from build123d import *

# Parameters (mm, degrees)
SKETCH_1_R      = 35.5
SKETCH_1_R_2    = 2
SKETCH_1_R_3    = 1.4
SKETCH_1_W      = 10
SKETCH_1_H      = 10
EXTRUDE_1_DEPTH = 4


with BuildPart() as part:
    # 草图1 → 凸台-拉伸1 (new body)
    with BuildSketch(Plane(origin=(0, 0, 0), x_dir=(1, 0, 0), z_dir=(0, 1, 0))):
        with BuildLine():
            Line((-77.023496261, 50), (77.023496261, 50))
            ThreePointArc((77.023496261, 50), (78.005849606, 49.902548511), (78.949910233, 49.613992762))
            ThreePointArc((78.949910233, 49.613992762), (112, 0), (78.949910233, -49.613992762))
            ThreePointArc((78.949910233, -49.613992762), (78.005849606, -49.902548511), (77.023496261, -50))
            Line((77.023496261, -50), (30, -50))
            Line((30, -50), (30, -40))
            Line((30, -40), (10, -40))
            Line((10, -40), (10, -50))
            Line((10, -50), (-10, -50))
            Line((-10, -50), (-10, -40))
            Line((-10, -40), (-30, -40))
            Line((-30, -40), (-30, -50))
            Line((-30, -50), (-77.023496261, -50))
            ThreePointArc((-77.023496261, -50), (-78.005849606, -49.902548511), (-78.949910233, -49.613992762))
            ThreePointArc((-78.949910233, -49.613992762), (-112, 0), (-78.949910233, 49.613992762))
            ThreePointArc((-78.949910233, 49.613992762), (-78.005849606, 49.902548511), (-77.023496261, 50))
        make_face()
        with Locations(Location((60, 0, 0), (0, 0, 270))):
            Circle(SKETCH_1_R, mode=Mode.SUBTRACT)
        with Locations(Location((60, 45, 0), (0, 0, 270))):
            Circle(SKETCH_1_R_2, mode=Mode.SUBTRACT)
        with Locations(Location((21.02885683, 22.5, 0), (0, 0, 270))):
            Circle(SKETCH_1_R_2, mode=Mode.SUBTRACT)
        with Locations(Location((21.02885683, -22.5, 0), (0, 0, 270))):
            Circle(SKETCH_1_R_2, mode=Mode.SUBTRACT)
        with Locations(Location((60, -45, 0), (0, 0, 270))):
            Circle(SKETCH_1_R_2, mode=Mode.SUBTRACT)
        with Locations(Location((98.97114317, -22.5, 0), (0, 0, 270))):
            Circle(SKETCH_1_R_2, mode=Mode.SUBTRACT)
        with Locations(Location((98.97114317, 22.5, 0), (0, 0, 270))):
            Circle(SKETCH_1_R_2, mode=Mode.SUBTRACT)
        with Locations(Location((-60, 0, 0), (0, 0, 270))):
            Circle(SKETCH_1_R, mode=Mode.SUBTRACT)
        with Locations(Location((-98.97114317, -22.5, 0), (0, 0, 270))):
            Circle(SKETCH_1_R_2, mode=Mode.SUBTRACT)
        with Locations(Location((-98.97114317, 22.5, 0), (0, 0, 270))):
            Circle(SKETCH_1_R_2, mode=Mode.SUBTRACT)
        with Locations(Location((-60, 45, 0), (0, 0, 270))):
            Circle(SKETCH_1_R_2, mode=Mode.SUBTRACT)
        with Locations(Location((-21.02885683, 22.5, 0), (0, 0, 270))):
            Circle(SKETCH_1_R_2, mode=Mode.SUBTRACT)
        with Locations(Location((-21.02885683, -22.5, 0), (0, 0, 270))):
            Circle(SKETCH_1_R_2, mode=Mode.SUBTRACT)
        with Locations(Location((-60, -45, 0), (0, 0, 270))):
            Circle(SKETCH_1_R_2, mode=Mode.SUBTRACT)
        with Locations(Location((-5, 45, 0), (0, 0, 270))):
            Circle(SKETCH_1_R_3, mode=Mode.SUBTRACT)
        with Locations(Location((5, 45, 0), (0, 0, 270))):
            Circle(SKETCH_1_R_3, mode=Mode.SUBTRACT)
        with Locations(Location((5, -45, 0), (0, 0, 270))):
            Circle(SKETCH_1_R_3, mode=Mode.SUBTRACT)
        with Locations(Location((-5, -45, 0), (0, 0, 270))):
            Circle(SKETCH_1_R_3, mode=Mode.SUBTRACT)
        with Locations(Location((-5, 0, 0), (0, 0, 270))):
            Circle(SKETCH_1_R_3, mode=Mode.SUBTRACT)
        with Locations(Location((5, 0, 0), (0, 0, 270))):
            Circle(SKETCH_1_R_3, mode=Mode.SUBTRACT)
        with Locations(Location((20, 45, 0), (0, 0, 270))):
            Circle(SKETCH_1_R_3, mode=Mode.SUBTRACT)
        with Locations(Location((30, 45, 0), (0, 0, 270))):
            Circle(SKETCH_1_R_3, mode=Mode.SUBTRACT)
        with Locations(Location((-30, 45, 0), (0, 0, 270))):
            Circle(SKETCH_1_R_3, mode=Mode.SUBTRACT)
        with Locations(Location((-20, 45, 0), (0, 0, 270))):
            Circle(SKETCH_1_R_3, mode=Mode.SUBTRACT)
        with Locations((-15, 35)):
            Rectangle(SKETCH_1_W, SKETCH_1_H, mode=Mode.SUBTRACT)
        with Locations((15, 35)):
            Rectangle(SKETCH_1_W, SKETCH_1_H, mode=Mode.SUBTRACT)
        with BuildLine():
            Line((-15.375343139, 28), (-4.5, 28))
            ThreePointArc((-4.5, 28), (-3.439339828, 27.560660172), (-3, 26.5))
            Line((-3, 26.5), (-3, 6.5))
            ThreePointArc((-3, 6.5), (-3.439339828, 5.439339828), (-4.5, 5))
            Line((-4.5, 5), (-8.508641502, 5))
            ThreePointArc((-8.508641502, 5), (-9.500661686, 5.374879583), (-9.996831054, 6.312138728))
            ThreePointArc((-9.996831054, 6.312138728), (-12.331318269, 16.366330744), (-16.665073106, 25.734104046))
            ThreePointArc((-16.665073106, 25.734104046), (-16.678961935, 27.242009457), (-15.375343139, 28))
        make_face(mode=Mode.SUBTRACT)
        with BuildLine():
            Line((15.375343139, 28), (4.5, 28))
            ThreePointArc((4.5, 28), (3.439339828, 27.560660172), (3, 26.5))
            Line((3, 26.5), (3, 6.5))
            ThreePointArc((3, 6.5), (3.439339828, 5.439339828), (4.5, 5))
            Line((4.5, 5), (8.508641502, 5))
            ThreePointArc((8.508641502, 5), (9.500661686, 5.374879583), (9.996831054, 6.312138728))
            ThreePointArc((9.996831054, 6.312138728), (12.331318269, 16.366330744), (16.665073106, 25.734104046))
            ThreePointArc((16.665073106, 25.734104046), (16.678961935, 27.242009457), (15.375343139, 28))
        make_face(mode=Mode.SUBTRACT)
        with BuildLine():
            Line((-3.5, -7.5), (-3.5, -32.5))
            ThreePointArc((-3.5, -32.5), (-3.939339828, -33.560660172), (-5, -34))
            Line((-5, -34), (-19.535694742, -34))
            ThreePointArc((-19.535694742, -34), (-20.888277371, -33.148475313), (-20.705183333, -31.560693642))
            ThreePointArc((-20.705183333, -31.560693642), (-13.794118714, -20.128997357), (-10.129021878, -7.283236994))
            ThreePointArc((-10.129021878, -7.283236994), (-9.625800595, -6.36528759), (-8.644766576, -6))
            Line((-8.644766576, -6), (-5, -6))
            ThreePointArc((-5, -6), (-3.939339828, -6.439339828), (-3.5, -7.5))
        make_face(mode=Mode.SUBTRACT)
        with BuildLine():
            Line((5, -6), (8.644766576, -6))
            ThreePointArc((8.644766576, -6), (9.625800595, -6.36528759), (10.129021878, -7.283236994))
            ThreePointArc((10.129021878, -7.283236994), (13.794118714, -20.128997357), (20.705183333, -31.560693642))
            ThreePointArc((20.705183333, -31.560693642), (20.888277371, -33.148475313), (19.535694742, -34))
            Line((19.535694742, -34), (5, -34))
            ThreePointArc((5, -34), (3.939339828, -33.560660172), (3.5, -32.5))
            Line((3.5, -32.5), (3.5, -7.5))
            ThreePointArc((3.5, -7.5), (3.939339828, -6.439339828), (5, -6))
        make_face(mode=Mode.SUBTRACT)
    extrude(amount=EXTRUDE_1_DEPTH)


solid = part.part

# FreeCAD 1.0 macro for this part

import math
import FreeCAD as App
import Part
import Sketcher
from FreeCAD import Vector


def add_polygon(sketch, points):
    """Adds a closed chain of lines whose ends are joined by coincident constraints."""
    first, n = sketch.GeometryCount, len(points)
    for a, b in zip(points, points[1:] + points[:1]):
        sketch.addGeometry(Part.LineSegment(App.Vector(*a, 0), App.Vector(*b, 0)), False)
    for i in range(n):
        sketch.addConstraint(Sketcher.Constraint("Coincident", first + i, 2, first + (i + 1) % n, 1))

doc = App.newDocument("Part")
body = doc.addObject("PartDesign::Body", "Body")

sketch1 = body.newObject("Sketcher::SketchObject", "Sketch")
sketch1.AttachmentSupport = (doc.getObject("XZ_Plane"), [""])
sketch1.MapMode = "FlatFace"
sketch1.addGeometry(Part.LineSegment(Vector(77, -50, 0), Vector(-77, -50, 0)), False)
sketch1.addGeometry(Part.ArcOfCircle(Part.Circle(Vector(-77, -45, 0), Vector(0, 0, 1), 5), math.radians(-113), math.radians(-90)), False)
sketch1.addGeometry(Part.ArcOfCircle(Part.Circle(Vector(-58.2, 0, 0), Vector(0, 0, 1), 53.8), math.radians(113), math.radians(247)), False)
sketch1.addGeometry(Part.ArcOfCircle(Part.Circle(Vector(-77, 45, 0), Vector(0, 0, 1), 5), math.radians(90), math.radians(113)), False)
sketch1.addGeometry(Part.LineSegment(Vector(-77, 50, 0), Vector(-30, 50, 0)), False)
sketch1.addGeometry(Part.LineSegment(Vector(-30, 50, 0), Vector(-30, 40, 0)), False)
sketch1.addGeometry(Part.LineSegment(Vector(-30, 40, 0), Vector(-10, 40, 0)), False)
sketch1.addGeometry(Part.LineSegment(Vector(-10, 40, 0), Vector(-10, 50, 0)), False)
sketch1.addGeometry(Part.LineSegment(Vector(-10, 50, 0), Vector(10, 50, 0)), False)
sketch1.addGeometry(Part.LineSegment(Vector(10, 50, 0), Vector(10, 40, 0)), False)
sketch1.addGeometry(Part.LineSegment(Vector(10, 40, 0), Vector(30, 40, 0)), False)
sketch1.addGeometry(Part.LineSegment(Vector(30, 40, 0), Vector(30, 50, 0)), False)
sketch1.addGeometry(Part.LineSegment(Vector(30, 50, 0), Vector(77, 50, 0)), False)
sketch1.addGeometry(Part.ArcOfCircle(Part.Circle(Vector(77, 45, 0), Vector(0, 0, 1), 5), math.radians(67), math.radians(90)), False)
sketch1.addGeometry(Part.ArcOfCircle(Part.Circle(Vector(58.2, 0, 0), Vector(0, 0, 1), 53.8), math.radians(-67), math.radians(67)), False)
sketch1.addGeometry(Part.ArcOfCircle(Part.Circle(Vector(77, -45, 0), Vector(0, 0, 1), 5), math.radians(-90), math.radians(-67)), False)
sketch1.addGeometry(Part.Circle(Vector(60, 45, 0), Vector(0, 0, 1), 2), False)
sketch1.addGeometry(Part.Circle(Vector(5, 45, 0), Vector(0, 0, 1), 1.4), False)
sketch1.addGeometry(Part.Circle(Vector(99, 22.5, 0), Vector(0, 0, 1), 2), False)
sketch1.addGeometry(Part.Circle(Vector(21, 22.5, 0), Vector(0, 0, 1), 2), False)
sketch1.addGeometry(Part.LineSegment(Vector(5, 6, 0), Vector(8.6, 6, 0)), False)
sketch1.addGeometry(Part.ArcOfCircle(Part.Circle(Vector(8.6, 7.5, 0), Vector(0, 0, 1), 1.5), math.radians(-90), math.radians(-8)), False)
sketch1.addGeometry(Part.ArcOfCircle(Part.Circle(Vector(60, 0, 0), Vector(0, 0, 1), 50.4), math.radians(141), math.radians(172)), False)
sketch1.addGeometry(Part.ArcOfCircle(Part.Circle(Vector(19.5, 32.5, 0), Vector(0, 0, 1), 1.5), math.radians(-39), math.radians(90)), False)
sketch1.addGeometry(Part.LineSegment(Vector(19.5, 34, 0), Vector(5, 34, 0)), False)
sketch1.addGeometry(Part.ArcOfCircle(Part.Circle(Vector(5, 32.5, 0), Vector(0, 0, 1), 1.5), math.radians(90), math.radians(180)), False)
sketch1.addGeometry(Part.LineSegment(Vector(3.5, 32.5, 0), Vector(3.5, 7.5, 0)), False)
sketch1.addGeometry(Part.ArcOfCircle(Part.Circle(Vector(5, 7.5, 0), Vector(0, 0, 1), 1.5), math.radians(180), math.radians(270)), False)
sketch1.addGeometry(Part.Circle(Vector(-5, 45, 0), Vector(0, 0, 1), 1.4), False)
sketch1.addGeometry(Part.Circle(Vector(-60, 45, 0), Vector(0, 0, 1), 2), False)
sketch1.addGeometry(Part.LineSegment(Vector(-3.5, 7.5, 0), Vector(-3.5, 32.5, 0)), False)
sketch1.addGeometry(Part.ArcOfCircle(Part.Circle(Vector(-5, 32.5, 0), Vector(0, 0, 1), 1.5), math.radians(0), math.radians(90)), False)
sketch1.addGeometry(Part.LineSegment(Vector(-5, 34, 0), Vector(-19.5, 34, 0)), False)
sketch1.addGeometry(Part.ArcOfCircle(Part.Circle(Vector(-19.5, 32.5, 0), Vector(0, 0, 1), 1.5), math.radians(90), math.radians(219)), False)
sketch1.addGeometry(Part.ArcOfCircle(Part.Circle(Vector(-60, 0, 0), Vector(0, 0, 1), 50.4), math.radians(8), math.radians(39)), False)
sketch1.addGeometry(Part.ArcOfCircle(Part.Circle(Vector(-8.6, 7.5, 0), Vector(0, 0, 1), 1.5), math.radians(-172), math.radians(-90)), False)
sketch1.addGeometry(Part.LineSegment(Vector(-8.6, 6, 0), Vector(-5, 6, 0)), False)
sketch1.addGeometry(Part.ArcOfCircle(Part.Circle(Vector(-5, 7.5, 0), Vector(0, 0, 1), 1.5), math.radians(-90), math.radians(0)), False)
sketch1.addGeometry(Part.Circle(Vector(-21, 22.5, 0), Vector(0, 0, 1), 2), False)
sketch1.addGeometry(Part.Circle(Vector(-99, 22.5, 0), Vector(0, 0, 1), 2), False)
sketch1.addGeometry(Part.Circle(Vector(60, 0, 0), Vector(0, 0, 1), 35.5), False)
sketch1.addGeometry(Part.Circle(Vector(99, -22.5, 0), Vector(0, 0, 1), 2), False)
sketch1.addGeometry(Part.Circle(Vector(5, 0, 0), Vector(0, 0, 1), 1.4), False)
sketch1.addGeometry(Part.ArcOfCircle(Part.Circle(Vector(15.4, -26.5, 0), Vector(0, 0, 1), 1.5), math.radians(-90), math.radians(31)), False)
sketch1.addGeometry(Part.ArcOfCircle(Part.Circle(Vector(60, 0, 0), Vector(0, 0, 1), 50.4), math.radians(-173), math.radians(-149)), False)
sketch1.addGeometry(Part.ArcOfCircle(Part.Circle(Vector(8.5, -6.5, 0), Vector(0, 0, 1), 1.5), math.radians(7), math.radians(90)), False)
sketch1.addGeometry(Part.LineSegment(Vector(8.5, -5, 0), Vector(4.5, -5, 0)), False)
sketch1.addGeometry(Part.ArcOfCircle(Part.Circle(Vector(4.5, -6.5, 0), Vector(0, 0, 1), 1.5), math.radians(90), math.radians(180)), False)
sketch1.addGeometry(Part.LineSegment(Vector(3, -6.5, 0), Vector(3, -26.5, 0)), False)
sketch1.addGeometry(Part.ArcOfCircle(Part.Circle(Vector(4.5, -26.5, 0), Vector(0, 0, 1), 1.5), math.radians(180), math.radians(270)), False)
sketch1.addGeometry(Part.LineSegment(Vector(4.5, -28, 0), Vector(15.4, -28, 0)), False)
sketch1.addGeometry(Part.Circle(Vector(21, -22.5, 0), Vector(0, 0, 1), 2), False)
sketch1.addGeometry(Part.Circle(Vector(60, -45, 0), Vector(0, 0, 1), 2), False)
add_polygon(sketch1, [(10, -30), (10, -40), (20, -40), (20, -30)])
sketch1.addGeometry(Part.Circle(Vector(30, -45, 0), Vector(0, 0, 1), 1.4), False)
sketch1.addGeometry(Part.Circle(Vector(20, -45, 0), Vector(0, 0, 1), 1.4), False)
sketch1.addGeometry(Part.Circle(Vector(5, -45, 0), Vector(0, 0, 1), 1.4), False)
sketch1.addGeometry(Part.Circle(Vector(-5, 0, 0), Vector(0, 0, 1), 1.4), False)
sketch1.addGeometry(Part.LineSegment(Vector(-15.4, -28, 0), Vector(-4.5, -28, 0)), False)
sketch1.addGeometry(Part.ArcOfCircle(Part.Circle(Vector(-4.5, -26.5, 0), Vector(0, 0, 1), 1.5), math.radians(-90), math.radians(0)), False)
sketch1.addGeometry(Part.LineSegment(Vector(-3, -26.5, 0), Vector(-3, -6.5, 0)), False)
sketch1.addGeometry(Part.ArcOfCircle(Part.Circle(Vector(-4.5, -6.5, 0), Vector(0, 0, 1), 1.5), math.radians(0), math.radians(90)), False)
sketch1.addGeometry(Part.LineSegment(Vector(-4.5, -5, 0), Vector(-8.5, -5, 0)), False)
sketch1.addGeometry(Part.ArcOfCircle(Part.Circle(Vector(-8.5, -6.5, 0), Vector(0, 0, 1), 1.5), math.radians(90), math.radians(173)), False)
sketch1.addGeometry(Part.ArcOfCircle(Part.Circle(Vector(-60, 0, 0), Vector(0, 0, 1), 50.4), math.radians(-31), math.radians(-7)), False)
sketch1.addGeometry(Part.ArcOfCircle(Part.Circle(Vector(-15.4, -26.5, 0), Vector(0, 0, 1), 1.5), math.radians(149), math.radians(270)), False)
sketch1.addGeometry(Part.Circle(Vector(-21, -22.5, 0), Vector(0, 0, 1), 2), False)
sketch1.addGeometry(Part.Circle(Vector(-60, 0, 0), Vector(0, 0, 1), 35.5), False)
sketch1.addGeometry(Part.Circle(Vector(-99, -22.5, 0), Vector(0, 0, 1), 2), False)
add_polygon(sketch1, [(-20, -30), (-20, -40), (-10, -40), (-10, -30)])
sketch1.addGeometry(Part.Circle(Vector(-5, -45, 0), Vector(0, 0, 1), 1.4), False)
sketch1.addGeometry(Part.Circle(Vector(-20, -45, 0), Vector(0, 0, 1), 1.4), False)
sketch1.addGeometry(Part.Circle(Vector(-30, -45, 0), Vector(0, 0, 1), 1.4), False)
sketch1.addGeometry(Part.Circle(Vector(-60, -45, 0), Vector(0, 0, 1), 2), False)
sketch1.addConstraint([
    Sketcher.Constraint("Tangent", 0, 2, 1, 2),
    Sketcher.Constraint("Tangent", 1, 1, 2, 2),
    Sketcher.Constraint("Tangent", 2, 1, 3, 2),
    Sketcher.Constraint("Tangent", 3, 1, 4, 1),
    Sketcher.Constraint("Coincident", 4, 2, 5, 1),
    Sketcher.Constraint("Coincident", 5, 2, 6, 1),
    Sketcher.Constraint("Coincident", 6, 2, 7, 1),
    Sketcher.Constraint("Coincident", 7, 2, 8, 1),
    Sketcher.Constraint("Coincident", 8, 2, 9, 1),
    Sketcher.Constraint("Coincident", 9, 2, 10, 1),
    Sketcher.Constraint("Coincident", 10, 2, 11, 1),
    Sketcher.Constraint("Coincident", 11, 2, 12, 1),
    Sketcher.Constraint("Tangent", 12, 2, 13, 2),
    Sketcher.Constraint("Tangent", 13, 1, 14, 2),
    Sketcher.Constraint("Tangent", 14, 1, 15, 2),
    Sketcher.Constraint("Tangent", 15, 1, 0, 1),
    Sketcher.Constraint("Tangent", 20, 2, 21, 1),
    Sketcher.Constraint("Tangent", 21, 2, 22, 2),
    Sketcher.Constraint("Tangent", 22, 1, 23, 1),
    Sketcher.Constraint("Tangent", 23, 2, 24, 1),
    Sketcher.Constraint("Tangent", 24, 2, 25, 1),
    Sketcher.Constraint("Tangent", 25, 2, 26, 1),
    Sketcher.Constraint("Tangent", 26, 2, 27, 1),
    Sketcher.Constraint("Tangent", 27, 2, 20, 1),
    Sketcher.Constraint("Tangent", 30, 2, 31, 1),
    Sketcher.Constraint("Tangent", 31, 2, 32, 1),
    Sketcher.Constraint("Tangent", 32, 2, 33, 1),
    Sketcher.Constraint("Tangent", 33, 2, 34, 2),
    Sketcher.Constraint("Tangent", 34, 1, 35, 1),
    Sketcher.Constraint("Tangent", 35, 2, 36, 1),
    Sketcher.Constraint("Tangent", 36, 2, 37, 1),
    Sketcher.Constraint("Tangent", 37, 2, 30, 1),
    Sketcher.Constraint("Tangent", 43, 2, 44, 2),
    Sketcher.Constraint("Tangent", 44, 1, 45, 1),
    Sketcher.Constraint("Tangent", 45, 2, 46, 1),
    Sketcher.Constraint("Tangent", 46, 2, 47, 1),
    Sketcher.Constraint("Tangent", 47, 2, 48, 1),
    Sketcher.Constraint("Tangent", 48, 2, 49, 1),
    Sketcher.Constraint("Tangent", 49, 2, 50, 1),
    Sketcher.Constraint("Tangent", 50, 2, 43, 1),
    Sketcher.Constraint("Tangent", 61, 2, 62, 1),
    Sketcher.Constraint("Tangent", 62, 2, 63, 1),
    Sketcher.Constraint("Tangent", 63, 2, 64, 1),
    Sketcher.Constraint("Tangent", 64, 2, 65, 1),
    Sketcher.Constraint("Tangent", 65, 2, 66, 1),
    Sketcher.Constraint("Tangent", 66, 2, 67, 2),
    Sketcher.Constraint("Tangent", 67, 1, 68, 1),
    Sketcher.Constraint("Tangent", 68, 2, 61, 1),
    Sketcher.Constraint("Horizontal", 0),
    Sketcher.Constraint("Horizontal", 4),
    Sketcher.Constraint("Vertical", 5),
    Sketcher.Constraint("Horizontal", 6),
    Sketcher.Constraint("Vertical", 7),
    Sketcher.Constraint("Horizontal", 8),
    Sketcher.Constraint("Vertical", 9),
    Sketcher.Constraint("Horizontal", 10),
    Sketcher.Constraint("Vertical", 11),
    Sketcher.Constraint("Horizontal", 12),
    Sketcher.Constraint("Horizontal", 20),
    Sketcher.Constraint("Horizontal", 24),
    Sketcher.Constraint("Vertical", 26),
    Sketcher.Constraint("Vertical", 30),
    Sketcher.Constraint("Horizontal", 32),
    Sketcher.Constraint("Horizontal", 36),
    Sketcher.Constraint("Horizontal", 46),
    Sketcher.Constraint("Vertical", 48),
    Sketcher.Constraint("Horizontal", 50),
    Sketcher.Constraint("Vertical", 53),
    Sketcher.Constraint("Horizontal", 54),
    Sketcher.Constraint("Vertical", 55),
    Sketcher.Constraint("Horizontal", 56),
    Sketcher.Constraint("Horizontal", 61),
    Sketcher.Constraint("Vertical", 63),
    Sketcher.Constraint("Horizontal", 65),
    Sketcher.Constraint("Vertical", 72),
    Sketcher.Constraint("Horizontal", 73),
    Sketcher.Constraint("Vertical", 74),
    Sketcher.Constraint("Horizontal", 75),
    Sketcher.Constraint("Coincident", 40, 3, 22, 3),
    Sketcher.Constraint("Coincident", 44, 3, 22, 3),
    Sketcher.Constraint("Coincident", 67, 3, 34, 3),
    Sketcher.Constraint("Coincident", 70, 3, 34, 3),
    Sketcher.Constraint("Equal", 1, 3),
    Sketcher.Constraint("Equal", 3, 13),
    Sketcher.Constraint("Equal", 2, 14),
    Sketcher.Constraint("Equal", 13, 15),
    Sketcher.Constraint("Equal", 16, 18),
    Sketcher.Constraint("Equal", 18, 19),
    Sketcher.Constraint("Equal", 21, 23),
    Sketcher.Constraint("Equal", 23, 25),
    Sketcher.Constraint("Equal", 25, 27),
    Sketcher.Constraint("Equal", 17, 28),
    Sketcher.Constraint("Equal", 19, 29),
    Sketcher.Constraint("Equal", 27, 31),
    Sketcher.Constraint("Equal", 31, 33),
    Sketcher.Constraint("Equal", 22, 34),
    Sketcher.Constraint("Equal", 33, 35),
    Sketcher.Constraint("Equal", 35, 37),
    Sketcher.Constraint("Equal", 29, 38),
    Sketcher.Constraint("Equal", 38, 39),
    Sketcher.Constraint("Equal", 39, 41),
    Sketcher.Constraint("Equal", 28, 42),
    Sketcher.Constraint("Equal", 37, 43),
    Sketcher.Constraint("Equal", 34, 44),
    Sketcher.Constraint("Equal", 43, 45),
    Sketcher.Constraint("Equal", 45, 47),
    Sketcher.Constraint("Equal", 47, 49),
    Sketcher.Constraint("Equal", 41, 51),
    Sketcher.Constraint("Equal", 51, 52),
    Sketcher.Constraint("Equal", 42, 57),
    Sketcher.Constraint("Equal", 57, 58),
    Sketcher.Constraint("Equal", 58, 59),
    Sketcher.Constraint("Equal", 59, 60),
    Sketcher.Constraint("Equal", 49, 62),
    Sketcher.Constraint("Equal", 62, 64),
    Sketcher.Constraint("Equal", 64, 66),
    Sketcher.Constraint("Equal", 44, 67),
    Sketcher.Constraint("Equal", 66, 68),
    Sketcher.Constraint("Equal", 52, 69),
    Sketcher.Constraint("Equal", 40, 70),
    Sketcher.Constraint("Equal", 69, 71),
    Sketcher.Constraint("Equal", 60, 76),
    Sketcher.Constraint("Equal", 76, 77),
    Sketcher.Constraint("Equal", 77, 78),
    Sketcher.Constraint("Equal", 71, 79),
    Sketcher.Constraint("Symmetric", 1, 3, 13, 3, -1, 1),
    Sketcher.Constraint("Symmetric", 3, 3, 15, 3, -1, 1),
    Sketcher.Constraint("Symmetric", 22, 3, 34, 3, -1, 1),
    Sketcher.Constraint("Symmetric", 39, 3, 41, 3, -1, 1),
    Sketcher.Constraint("Symmetric", 38, 3, 51, 3, -1, 1),
    Sketcher.Constraint("Symmetric", 29, 3, 52, 3, -1, 1),
    Sketcher.Constraint("Symmetric", 28, 3, 59, 3, -1, 1),
    Sketcher.Constraint("Symmetric", 42, 3, 60, 3, -1, 1),
    Sketcher.Constraint("Symmetric", 19, 3, 69, 3, -1, 1),
    Sketcher.Constraint("Symmetric", 18, 3, 71, 3, -1, 1),
    Sketcher.Constraint("Symmetric", 17, 3, 76, 3, -1, 1),
    Sketcher.Constraint("Symmetric", 16, 3, 79, 3, -1, 1),
    Sketcher.Constraint("Symmetric", 6, 2, 53, 2, -1, 1),
    Sketcher.Constraint("Symmetric", 9, 2, 73, 2, -1, 1),
    Sketcher.Constraint("Symmetric", 17, 3, 28, 3, -2),
    Sketcher.Constraint("Symmetric", 16, 3, 29, 3, -2),
    Sketcher.Constraint("Symmetric", 25, 3, 31, 3, -2),
    Sketcher.Constraint("Symmetric", 21, 3, 35, 3, -2),
    Sketcher.Constraint("Symmetric", 19, 3, 38, 3, -2),
    Sketcher.Constraint("Symmetric", 18, 3, 39, 3, -2),
    Sketcher.Constraint("Symmetric", 49, 3, 62, 3, -2),
    Sketcher.Constraint("Symmetric", 58, 3, 77, 3, -2),
    Sketcher.Constraint("Symmetric", 57, 3, 78, 3, -2),
    Sketcher.Constraint("Symmetric", 6, 2, 9, 2, -2),
    Sketcher.Constraint("Symmetric", 55, 2, 75, 2, -2),
    Sketcher.Constraint("PointOnObject", 2, 3, -1),
    Sketcher.Constraint("PointOnObject", 42, 3, -1),
    Sketcher.Constraint("Horizontal", 13, 3, 16, 3),
    Sketcher.Constraint("Horizontal", 16, 3, 17, 3),
    Sketcher.Constraint("Horizontal", 18, 3, 19, 3),
    Sketcher.Constraint("Horizontal", 52, 3, 57, 3),
    Sketcher.Constraint("Horizontal", 57, 3, 58, 3),
    Sketcher.Constraint("Horizontal", 47, 3, 64, 3),
    Sketcher.Constraint("Horizontal", 4, 2, 7, 2),
    Sketcher.Constraint("Vertical", 16, 3, 22, 3),
    Sketcher.Constraint("Vertical", 17, 3, 25, 3),
    Sketcher.Constraint("Vertical", 27, 3, 42, 3),
    Sketcher.Constraint("Vertical", 78, 3, 4, 2),
    Sketcher.Constraint("Vertical", 57, 3, 10, 2),
    Sketcher.Constraint("Vertical", 58, 3, 54, 2),
    Sketcher.Constraint("Equal", 6, 8),
    Sketcher.Constraint("Equal", 75, 5),
    Sketcher.Constraint("Equal", 10, 48),
    Sketcher.Constraint("Equal", 11, 53),
    Sketcher.Constraint("Diameter", 16, 4.0),
    Sketcher.Constraint("Diameter", 40, 71.0),
    Sketcher.Constraint("Radius", 1, 5.0),
    Sketcher.Constraint("Diameter", 17, 2.8),
    Sketcher.Constraint("Radius", 21, 1.5),
    Sketcher.Constraint("Radius", 22, 50.4),
    Sketcher.Constraint("DistanceX", 6, 1, 6, 2, 20.0),
    Sketcher.Constraint("DistanceX", 54, 1, 54, 2, 10.0),
    Sketcher.Constraint("DistanceY", 26, 2, 26, 1, 25.0),
    Sketcher.Constraint("DistanceY", 1, 3, -1, 1, 45.0),
    Sketcher.Constraint("DistanceX", -1, 1, 16, 3, 60.0),
    Sketcher.Constraint("DistanceX", -1, 1, 17, 3, 5.0),
    Sketcher.Constraint("DistanceY", -1, 1, 20, 2, 6.0),
    Sketcher.Constraint("DistanceY", 45, 2, -1, 1, 5.0),
    Sketcher.Constraint("DistanceX", -1, 1, 47, 2, 3.0),
    Sketcher.Constraint("DistanceY", -1, 1, 18, 3, 22.5),
    Sketcher.Constraint("Radius", 2, 53.764706),
    Sketcher.Constraint("DistanceX", 0, 2, 0, 1, 154.046993),
    Sketcher.Constraint("DistanceX", -1, 1, 18, 3, 98.971143),
    Sketcher.Constraint("DistanceX", -1, 1, 19, 3, 21.028857),
])
pad1 = body.newObject("PartDesign::Pad", "Pad")
pad1.Profile = sketch1
pad1.Length = 4
pad1.Reversed = True

doc.recompute()
